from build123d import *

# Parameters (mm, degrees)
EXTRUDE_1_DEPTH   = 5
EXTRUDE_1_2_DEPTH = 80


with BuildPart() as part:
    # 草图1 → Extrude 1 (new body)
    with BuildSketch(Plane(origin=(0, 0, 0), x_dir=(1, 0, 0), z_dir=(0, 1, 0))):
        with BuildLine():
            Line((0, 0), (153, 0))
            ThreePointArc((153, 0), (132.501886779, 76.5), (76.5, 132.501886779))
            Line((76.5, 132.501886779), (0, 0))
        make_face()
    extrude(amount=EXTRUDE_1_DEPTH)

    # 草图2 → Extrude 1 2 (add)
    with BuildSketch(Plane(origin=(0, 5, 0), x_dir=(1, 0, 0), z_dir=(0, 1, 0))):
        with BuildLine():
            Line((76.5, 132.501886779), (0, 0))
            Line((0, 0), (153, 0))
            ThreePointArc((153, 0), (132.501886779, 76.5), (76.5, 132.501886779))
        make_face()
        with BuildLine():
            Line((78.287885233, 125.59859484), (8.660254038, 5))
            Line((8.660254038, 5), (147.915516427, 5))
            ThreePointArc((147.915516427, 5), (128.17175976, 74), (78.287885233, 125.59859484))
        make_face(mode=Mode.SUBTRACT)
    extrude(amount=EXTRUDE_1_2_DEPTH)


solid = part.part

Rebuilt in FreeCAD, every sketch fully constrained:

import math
import FreeCAD as App
import Part
import Sketcher
Q = App.Units.Quantity

doc = App.newDocument("Part")
body = doc.addObject("PartDesign::Body", "Body")

# Sketch on XZ plane
sketch1 = doc.addObject("Sketcher::SketchObject", "Sketch")
body.addObject(sketch1)
sketch1.AttachmentSupport = (doc.XZ_Plane, [""])
sketch1.MapMode = "FlatFace"
sketch1.addGeometry([
    Part.LineSegment(App.Vector(0, 0, 0), App.Vector(153, 0, 0)),
    Part.ArcOfCircle(Part.Circle(App.Vector(0, 0, 0), App.Vector(0, 0, 1), 153), math.radians(-60), math.radians(0)),
    Part.LineSegment(App.Vector(76, -133, 0), App.Vector(0, 0, 0)),
], False)
sketch1.addConstraint([
    Sketcher.Constraint("Coincident", 0, 2, 1, 2),
    Sketcher.Constraint("Coincident", 1, 1, 2, 1),
    Sketcher.Constraint("Coincident", 2, 2, 0, 1),
    Sketcher.Constraint("Horizontal", 0),
    Sketcher.Constraint("Coincident", 1, 3, -1, 1),
    Sketcher.Constraint("Coincident", 2, 2, -1, 1),
    Sketcher.Constraint("Radius", 1, Q("153 mm")),
    Sketcher.Constraint("Angle", 2, Q("120 deg")),
])
pad1 = doc.addObject("PartDesign::Pad", "Pad")
body.addObject(pad1)
pad1.Profile = sketch1
pad1.Length = 5
pad1.Reversed = True

# Sketch on XZ plane
sketch2 = doc.addObject("Sketcher::SketchObject", "Sketch001")
body.addObject(sketch2)
sketch2.AttachmentSupport = (doc.XZ_Plane, [""])
sketch2.MapMode = "FlatFace"
sketch2.AttachmentOffset = App.Placement(App.Vector(0, 0, -5), App.Rotation())
sketch2.addGeometry([
    Part.LineSegment(App.Vector(76, -133, 0), App.Vector(0, 0, 0)),  # 0
    Part.LineSegment(App.Vector(0, 0, 0), App.Vector(153, 0, 0)),  # 1
    Part.ArcOfCircle(Part.Circle(App.Vector(0, 0, 0), App.Vector(0, 0, 1), 153), math.radians(-60), math.radians(0)),  # 2
    Part.LineSegment(App.Vector(9, -5, 0), App.Vector(78, -126, 0)),  # 3
    Part.ArcOfCircle(Part.Circle(App.Vector(0, 0, 0), App.Vector(0, 0, 1), 148), math.radians(-58), math.radians(-2)),  # 4
    Part.LineSegment(App.Vector(148, -5, 0), App.Vector(9, -5, 0)),  # 5
], False)
sketch2.addConstraint([
    Sketcher.Constraint("Coincident", 0, 2, 1, 1),
    Sketcher.Constraint("Coincident", 1, 2, 2, 2),
    Sketcher.Constraint("Coincident", 2, 1, 0, 1),
    Sketcher.Constraint("Coincident", 3, 2, 4, 1),
    Sketcher.Constraint("Coincident", 4, 2, 5, 1),
    Sketcher.Constraint("Coincident", 5, 2, 3, 1),
    Sketcher.Constraint("Horizontal", 1),
    Sketcher.Constraint("Horizontal", 5),
    Sketcher.Constraint("Coincident", 2, 3, -1, 1),
    Sketcher.Constraint("Coincident", 4, 3, -1, 1),
    Sketcher.Constraint("Coincident", 0, 2, -1, 1),
    Sketcher.Constraint("Parallel", 0, 3),
    Sketcher.Constraint("Radius", 2, Q("153 mm")),
    Sketcher.Constraint("Radius", 4, Q("148 mm")),
    Sketcher.Constraint("Angle", 0, Q("120 deg")),
    Sketcher.Constraint("DistanceY", 4, 2, -1, 1, Q("5 mm")),
    Sketcher.Constraint("DistanceX", 5, 2, 5, 1, Q("139.255262 mm")),
])
pad2 = doc.addObject("PartDesign::Pad", "Pad001")
body.addObject(pad2)
pad2.Profile = sketch2
pad2.Length = 80
pad2.Reversed = True

doc.recompute()
